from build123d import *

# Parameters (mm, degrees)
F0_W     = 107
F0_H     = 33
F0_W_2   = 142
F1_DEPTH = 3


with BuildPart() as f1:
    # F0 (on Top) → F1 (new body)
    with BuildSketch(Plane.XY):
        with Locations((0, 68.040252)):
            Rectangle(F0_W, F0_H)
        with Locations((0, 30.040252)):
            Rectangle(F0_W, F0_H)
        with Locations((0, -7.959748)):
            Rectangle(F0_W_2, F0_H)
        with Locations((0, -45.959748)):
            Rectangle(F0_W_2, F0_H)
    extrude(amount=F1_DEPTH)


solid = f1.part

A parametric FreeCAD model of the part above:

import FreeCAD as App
import Part
import Sketcher


def add_polygon(sketch, points):
    """Adds a closed chain of lines whose ends are joined by coincident constraints."""
    first, n = sketch.GeometryCount, len(points)
    for a, b in zip(points, points[1:] + points[:1]):
        sketch.addGeometry(Part.LineSegment(App.Vector(*a, 0), App.Vector(*b, 0)), False)
    for i in range(n):
        sketch.addConstraint(Sketcher.Constraint("Coincident", first + i, 2, first + (i + 1) % n, 1))

doc = App.newDocument("Part")
params = doc.addObject("Spreadsheet::Sheet", "Params")
for row, (alias, value) in enumerate([
    ("sketch1_width", "107 mm"),
    ("sketch1_width2", "142 mm"),
    ("sketch1_height", "33 mm"),
    ("pad1_length", "3 mm"),
], start=1):
    params.set(f"A{row}", alias)
    params.set(f"B{row}", "=" + value)
    params.setAlias(f"B{row}", alias)

body = doc.addObject("PartDesign::Body", "Body")
body.AllowCompound = True

# Sketch on XY plane
sketch1 = body.newObject("Sketcher::SketchObject", "Sketch")
sketch1.AttachmentSupport = (doc.getObject("XY_Plane"), [""])
sketch1.MapMode = "FlatFace"
add_polygon(sketch1, [(-54, 85), (-54, 52), (54, 52), (54, 85)])  # lines 0-3
add_polygon(sketch1, [(-54, 47), (-54, 14), (54, 14), (54, 47)])  # lines 4-7
add_polygon(sketch1, [(-71, 9), (-71, -24), (71, -24), (71, 9)])  # lines 8-11
add_polygon(sketch1, [(-71, -29), (-71, -62), (71, -62), (71, -29)])  # lines 12-15
sketch1.addConstraint(Sketcher.Constraint("Vertical", 0))
sketch1.addConstraint(Sketcher.Constraint("Horizontal", 1))
sketch1.addConstraint(Sketcher.Constraint("Vertical", 2))
sketch1.addConstraint(Sketcher.Constraint("Horizontal", 3))
sketch1.addConstraint(Sketcher.Constraint("Vertical", 4))
sketch1.addConstraint(Sketcher.Constraint("Horizontal", 5))
sketch1.addConstraint(Sketcher.Constraint("Vertical", 6))
sketch1.addConstraint(Sketcher.Constraint("Horizontal", 7))
sketch1.addConstraint(Sketcher.Constraint("Vertical", 8))
sketch1.addConstraint(Sketcher.Constraint("Horizontal", 9))
sketch1.addConstraint(Sketcher.Constraint("Vertical", 10))
sketch1.addConstraint(Sketcher.Constraint("Horizontal", 11))
sketch1.addConstraint(Sketcher.Constraint("Vertical", 12))
sketch1.addConstraint(Sketcher.Constraint("Horizontal", 13))
sketch1.addConstraint(Sketcher.Constraint("Vertical", 14))
sketch1.addConstraint(Sketcher.Constraint("Horizontal", 15))
sketch1.addConstraint(Sketcher.Constraint("Vertical", 3, 2, 4, 2))
sketch1.addConstraint(Sketcher.Constraint("Vertical", 2, 2, 5, 2))
sketch1.addConstraint(Sketcher.Constraint("Vertical", 11, 2, 12, 2))
sketch1.addConstraint(Sketcher.Constraint("Vertical", 10, 2, 13, 2))
sketch1.addConstraint(Sketcher.Constraint("Equal", 2, 4))
sketch1.addConstraint(Sketcher.Constraint("Equal", 6, 8))
sketch1.addConstraint(Sketcher.Constraint("Equal", 10, 12))
sketch1.addConstraint(Sketcher.Constraint("DistanceX", 1, 1, 1, 2, 107.0))
sketch1.addConstraint(Sketcher.Constraint("DistanceX", 9, 1, 9, 2, 142.0))
sketch1.addConstraint(Sketcher.Constraint("DistanceY", 0, 2, 0, 1, 33.0))
sketch1.addConstraint(Sketcher.Constraint("DistanceX", 8, 2, -1, 1, 71.0))
sketch1.addConstraint(Sketcher.Constraint("DistanceY", 4, 2, 0, 2, 38.0))
sketch1.addConstraint(Sketcher.Constraint("DistanceY", 8, 2, 4, 2, 38.0))
sketch1.addConstraint(Sketcher.Constraint("DistanceY", 12, 2, 8, 2, 38.0))
sketch1.addConstraint(Sketcher.Constraint("DistanceX", 0, 2, -1, 1, 53.5))
sketch1.addConstraint(Sketcher.Constraint("DistanceY", -1, 1, 2, 2, 84.540252))
sketch1.setExpression("Constraints[39]", "Params.sketch1_width")
sketch1.setExpression("Constraints[40]", "Params.sketch1_width2")
sketch1.setExpression("Constraints[41]", "Params.sketch1_height")
pad1 = body.newObject("PartDesign::Pad", "Pad")
pad1.Profile = sketch1
pad1.setExpression("Length", "Params.pad1_length")

doc.recompute()
